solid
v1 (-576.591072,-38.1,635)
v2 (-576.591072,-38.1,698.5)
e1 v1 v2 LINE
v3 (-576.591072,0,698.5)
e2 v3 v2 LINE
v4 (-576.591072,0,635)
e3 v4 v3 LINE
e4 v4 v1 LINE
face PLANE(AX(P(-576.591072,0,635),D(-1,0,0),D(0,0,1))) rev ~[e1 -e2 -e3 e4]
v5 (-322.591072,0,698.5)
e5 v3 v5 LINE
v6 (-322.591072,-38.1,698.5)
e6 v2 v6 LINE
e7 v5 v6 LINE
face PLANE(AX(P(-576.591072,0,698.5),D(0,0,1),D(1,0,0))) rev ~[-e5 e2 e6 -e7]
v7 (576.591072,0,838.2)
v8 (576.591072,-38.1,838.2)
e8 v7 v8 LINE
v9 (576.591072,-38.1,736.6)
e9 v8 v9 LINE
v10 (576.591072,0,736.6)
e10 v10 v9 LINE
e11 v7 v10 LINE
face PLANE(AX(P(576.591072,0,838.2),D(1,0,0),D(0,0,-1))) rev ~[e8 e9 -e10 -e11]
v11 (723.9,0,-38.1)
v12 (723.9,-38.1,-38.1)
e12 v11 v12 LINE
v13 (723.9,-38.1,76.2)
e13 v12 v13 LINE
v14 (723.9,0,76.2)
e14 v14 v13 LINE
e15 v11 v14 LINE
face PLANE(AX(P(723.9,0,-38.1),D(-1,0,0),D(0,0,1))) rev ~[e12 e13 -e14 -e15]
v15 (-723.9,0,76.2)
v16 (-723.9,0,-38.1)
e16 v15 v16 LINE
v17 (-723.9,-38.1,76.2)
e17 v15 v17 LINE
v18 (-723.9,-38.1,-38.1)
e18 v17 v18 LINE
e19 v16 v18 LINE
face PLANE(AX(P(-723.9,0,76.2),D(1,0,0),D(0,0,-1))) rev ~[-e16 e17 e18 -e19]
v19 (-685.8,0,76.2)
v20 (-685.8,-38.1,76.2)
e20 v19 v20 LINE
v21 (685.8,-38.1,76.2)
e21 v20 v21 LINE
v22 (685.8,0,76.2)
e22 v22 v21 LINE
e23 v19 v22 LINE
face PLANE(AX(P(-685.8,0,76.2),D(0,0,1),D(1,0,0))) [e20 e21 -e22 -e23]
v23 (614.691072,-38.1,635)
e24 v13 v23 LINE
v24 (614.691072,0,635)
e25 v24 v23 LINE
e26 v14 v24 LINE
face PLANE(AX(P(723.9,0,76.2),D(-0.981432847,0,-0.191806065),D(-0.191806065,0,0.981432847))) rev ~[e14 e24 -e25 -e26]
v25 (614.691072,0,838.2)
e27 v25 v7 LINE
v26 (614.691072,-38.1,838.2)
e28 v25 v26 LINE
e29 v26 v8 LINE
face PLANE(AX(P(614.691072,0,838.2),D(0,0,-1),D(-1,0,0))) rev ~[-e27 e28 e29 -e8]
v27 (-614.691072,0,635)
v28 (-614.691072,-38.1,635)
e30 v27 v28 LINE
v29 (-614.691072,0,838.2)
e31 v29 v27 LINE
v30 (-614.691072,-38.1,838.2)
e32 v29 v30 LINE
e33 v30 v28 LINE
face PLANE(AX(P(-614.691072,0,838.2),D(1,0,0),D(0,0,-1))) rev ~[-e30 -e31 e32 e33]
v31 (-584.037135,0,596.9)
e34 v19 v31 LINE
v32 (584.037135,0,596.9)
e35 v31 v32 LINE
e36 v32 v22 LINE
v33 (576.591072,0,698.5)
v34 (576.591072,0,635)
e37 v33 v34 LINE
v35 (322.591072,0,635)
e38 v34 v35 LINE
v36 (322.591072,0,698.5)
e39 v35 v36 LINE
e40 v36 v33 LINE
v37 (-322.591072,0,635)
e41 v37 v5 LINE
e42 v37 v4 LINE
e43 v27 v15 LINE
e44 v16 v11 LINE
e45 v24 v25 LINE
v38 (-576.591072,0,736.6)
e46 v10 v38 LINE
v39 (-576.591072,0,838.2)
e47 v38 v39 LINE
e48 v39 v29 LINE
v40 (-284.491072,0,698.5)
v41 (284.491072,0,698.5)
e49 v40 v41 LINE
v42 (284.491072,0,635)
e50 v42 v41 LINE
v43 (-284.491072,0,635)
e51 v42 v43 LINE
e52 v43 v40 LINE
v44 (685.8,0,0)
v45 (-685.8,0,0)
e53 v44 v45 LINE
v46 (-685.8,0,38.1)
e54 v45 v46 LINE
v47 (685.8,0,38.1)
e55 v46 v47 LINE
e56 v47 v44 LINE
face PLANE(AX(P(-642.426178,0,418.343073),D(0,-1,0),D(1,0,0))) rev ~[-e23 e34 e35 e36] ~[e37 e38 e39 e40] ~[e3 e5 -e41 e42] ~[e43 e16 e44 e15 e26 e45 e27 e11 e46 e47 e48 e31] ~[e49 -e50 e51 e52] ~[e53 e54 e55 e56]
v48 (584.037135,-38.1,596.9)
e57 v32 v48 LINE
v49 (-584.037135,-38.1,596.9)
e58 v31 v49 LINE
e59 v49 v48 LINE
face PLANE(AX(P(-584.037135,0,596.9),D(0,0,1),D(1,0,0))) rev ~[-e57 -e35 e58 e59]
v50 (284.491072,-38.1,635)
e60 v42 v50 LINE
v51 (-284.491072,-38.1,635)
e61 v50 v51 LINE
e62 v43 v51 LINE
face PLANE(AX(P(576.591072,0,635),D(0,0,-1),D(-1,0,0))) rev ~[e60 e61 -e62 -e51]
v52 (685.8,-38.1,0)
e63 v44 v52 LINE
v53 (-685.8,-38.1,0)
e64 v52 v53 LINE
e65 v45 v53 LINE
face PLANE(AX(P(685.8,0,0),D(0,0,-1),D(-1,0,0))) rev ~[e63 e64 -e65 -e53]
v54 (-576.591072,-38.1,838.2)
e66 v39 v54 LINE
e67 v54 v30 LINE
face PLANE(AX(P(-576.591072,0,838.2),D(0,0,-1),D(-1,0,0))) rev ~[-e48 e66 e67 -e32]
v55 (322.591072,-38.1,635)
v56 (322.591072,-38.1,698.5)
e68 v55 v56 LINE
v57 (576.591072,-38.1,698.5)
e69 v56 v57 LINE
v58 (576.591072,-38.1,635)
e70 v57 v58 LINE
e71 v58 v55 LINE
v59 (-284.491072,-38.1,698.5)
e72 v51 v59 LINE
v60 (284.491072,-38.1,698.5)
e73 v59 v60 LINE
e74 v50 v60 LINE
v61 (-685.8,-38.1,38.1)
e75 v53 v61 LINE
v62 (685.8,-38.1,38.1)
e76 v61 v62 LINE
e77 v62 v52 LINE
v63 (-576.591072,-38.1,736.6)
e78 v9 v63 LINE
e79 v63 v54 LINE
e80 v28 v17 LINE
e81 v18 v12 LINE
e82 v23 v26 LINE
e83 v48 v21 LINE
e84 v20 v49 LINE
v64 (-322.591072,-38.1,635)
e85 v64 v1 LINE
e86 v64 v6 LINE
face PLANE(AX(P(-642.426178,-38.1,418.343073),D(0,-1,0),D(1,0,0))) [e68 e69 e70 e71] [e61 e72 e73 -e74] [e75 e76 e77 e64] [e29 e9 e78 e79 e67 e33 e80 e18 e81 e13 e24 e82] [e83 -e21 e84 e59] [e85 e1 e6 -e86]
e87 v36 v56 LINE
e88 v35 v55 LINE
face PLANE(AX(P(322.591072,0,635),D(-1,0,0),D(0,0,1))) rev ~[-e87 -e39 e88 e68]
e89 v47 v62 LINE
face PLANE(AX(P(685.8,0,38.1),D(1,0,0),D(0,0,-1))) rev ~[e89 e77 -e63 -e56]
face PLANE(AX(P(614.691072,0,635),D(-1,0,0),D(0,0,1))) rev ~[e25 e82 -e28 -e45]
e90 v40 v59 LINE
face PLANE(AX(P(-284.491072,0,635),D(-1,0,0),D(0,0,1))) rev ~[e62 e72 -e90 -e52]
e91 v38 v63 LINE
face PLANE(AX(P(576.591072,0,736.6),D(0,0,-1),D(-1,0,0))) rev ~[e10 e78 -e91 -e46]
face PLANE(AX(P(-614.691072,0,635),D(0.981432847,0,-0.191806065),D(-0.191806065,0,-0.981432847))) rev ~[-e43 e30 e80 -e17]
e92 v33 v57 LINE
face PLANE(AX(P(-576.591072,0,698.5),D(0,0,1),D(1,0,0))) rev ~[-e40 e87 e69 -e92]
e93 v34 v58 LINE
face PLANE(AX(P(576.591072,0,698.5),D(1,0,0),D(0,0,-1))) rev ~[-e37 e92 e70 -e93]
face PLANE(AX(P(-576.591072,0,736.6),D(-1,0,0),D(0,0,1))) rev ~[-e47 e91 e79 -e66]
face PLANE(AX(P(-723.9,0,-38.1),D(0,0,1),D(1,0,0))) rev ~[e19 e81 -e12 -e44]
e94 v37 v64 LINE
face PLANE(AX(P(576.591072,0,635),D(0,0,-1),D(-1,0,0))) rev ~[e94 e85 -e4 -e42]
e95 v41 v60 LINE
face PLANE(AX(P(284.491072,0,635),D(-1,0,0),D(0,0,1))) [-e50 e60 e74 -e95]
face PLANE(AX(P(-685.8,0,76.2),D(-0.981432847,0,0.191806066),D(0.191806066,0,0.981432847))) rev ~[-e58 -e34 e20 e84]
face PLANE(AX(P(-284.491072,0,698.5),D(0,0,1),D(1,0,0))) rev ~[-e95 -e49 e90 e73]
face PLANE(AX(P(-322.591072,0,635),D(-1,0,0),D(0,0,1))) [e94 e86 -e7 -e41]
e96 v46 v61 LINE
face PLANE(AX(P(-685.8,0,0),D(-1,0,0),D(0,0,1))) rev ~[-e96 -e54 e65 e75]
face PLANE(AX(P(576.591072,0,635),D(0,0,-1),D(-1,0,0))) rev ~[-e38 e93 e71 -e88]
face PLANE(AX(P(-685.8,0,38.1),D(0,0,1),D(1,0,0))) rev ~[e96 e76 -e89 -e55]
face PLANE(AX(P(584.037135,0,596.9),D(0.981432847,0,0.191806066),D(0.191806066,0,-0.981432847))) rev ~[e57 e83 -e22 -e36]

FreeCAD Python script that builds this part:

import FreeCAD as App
import Part
import Sketcher

V = App.Vector
Q = App.Units.Quantity

doc = App.newDocument("Part")
body = doc.addObject("PartDesign::Body", "Body")

sketch1 = doc.addObject("Sketcher::SketchObject", "Sketch")
body.addObject(sketch1)
sketch1.AttachmentSupport = (doc.XZ_Plane, [""])
sketch1.MapMode = "FlatFace"
sketch1.addGeometry([
    Part.LineSegment(V(-724, 76, 0), V(-724, -38, 0)),
    Part.LineSegment(V(-724, -38, 0), V(724, -38, 0)),
    Part.LineSegment(V(724, -38, 0), V(724, 76, 0)),
    Part.LineSegment(V(724, 76, 0), V(615, 635, 0)),
    Part.LineSegment(V(615, 635, 0), V(615, 838, 0)),
    Part.LineSegment(V(615, 838, 0), V(577, 838, 0)),
    Part.LineSegment(V(577, 838, 0), V(577, 737, 0)),
    Part.LineSegment(V(577, 737, 0), V(-577, 737, 0)),
    Part.LineSegment(V(-577, 737, 0), V(-577, 838, 0)),
    Part.LineSegment(V(-577, 838, 0), V(-615, 838, 0)),
    Part.LineSegment(V(-615, 838, 0), V(-615, 635, 0)),
    Part.LineSegment(V(-615, 635, 0), V(-724, 76, 0)),
    Part.LineSegment(V(-686, 0, 0), V(-686, 38, 0)),
    Part.LineSegment(V(-686, 38, 0), V(686, 38, 0)),
    Part.LineSegment(V(686, 38, 0), V(686, 0, 0)),
    Part.LineSegment(V(686, 0, 0), V(-686, 0, 0)),
    Part.LineSegment(V(-686, 76, 0), V(-584, 597, 0)),
    Part.LineSegment(V(-584, 597, 0), V(584, 597, 0)),
    Part.LineSegment(V(584, 597, 0), V(686, 76, 0)),
    Part.LineSegment(V(686, 76, 0), V(-686, 76, 0)),
    Part.LineSegment(V(577, 635, 0), V(-577, 635, 0)),
    Part.LineSegment(V(-577, 635, 0), V(-577, 698, 0)),
    Part.LineSegment(V(-577, 698, 0), V(577, 698, 0)),
    Part.LineSegment(V(577, 698, 0), V(577, 635, 0)),
], False)
sketch1.addConstraint([
    Sketcher.Constraint("Coincident", 0, 2, 1, 1),
    Sketcher.Constraint("Coincident", 1, 2, 2, 1),
    Sketcher.Constraint("Coincident", 2, 2, 3, 1),
    Sketcher.Constraint("Coincident", 3, 2, 4, 1),
    Sketcher.Constraint("Coincident", 4, 2, 5, 1),
    Sketcher.Constraint("Coincident", 5, 2, 6, 1),
    Sketcher.Constraint("Coincident", 6, 2, 7, 1),
    Sketcher.Constraint("Coincident", 7, 2, 8, 1),
    Sketcher.Constraint("Coincident", 8, 2, 9, 1),
    Sketcher.Constraint("Coincident", 9, 2, 10, 1),
    Sketcher.Constraint("Coincident", 10, 2, 11, 1),
    Sketcher.Constraint("Coincident", 11, 2, 0, 1),
    Sketcher.Constraint("Coincident", 12, 2, 13, 1),
    Sketcher.Constraint("Coincident", 13, 2, 14, 1),
    Sketcher.Constraint("Coincident", 14, 2, 15, 1),
    Sketcher.Constraint("Coincident", 15, 2, 12, 1),
    Sketcher.Constraint("Coincident", 16, 2, 17, 1),
    Sketcher.Constraint("Coincident", 17, 2, 18, 1),
    Sketcher.Constraint("Coincident", 18, 2, 19, 1),
    Sketcher.Constraint("Coincident", 19, 2, 16, 1),
    Sketcher.Constraint("Coincident", 20, 2, 21, 1),
    Sketcher.Constraint("Coincident", 21, 2, 22, 1),
    Sketcher.Constraint("Coincident", 22, 2, 23, 1),
    Sketcher.Constraint("Coincident", 23, 2, 20, 1),
    Sketcher.Constraint("Vertical", 0),
    Sketcher.Constraint("Horizontal", 1),
    Sketcher.Constraint("Vertical", 2),
    Sketcher.Constraint("Vertical", 4),
    Sketcher.Constraint("Horizontal", 5),
    Sketcher.Constraint("Vertical", 6),
    Sketcher.Constraint("Horizontal", 7),
    Sketcher.Constraint("Vertical", 8),
    Sketcher.Constraint("Horizontal", 9),
    Sketcher.Constraint("Vertical", 10),
    Sketcher.Constraint("Vertical", 12),
    Sketcher.Constraint("Horizontal", 13),
    Sketcher.Constraint("Vertical", 14),
    Sketcher.Constraint("Horizontal", 15),
    Sketcher.Constraint("Horizontal", 17),
    Sketcher.Constraint("Horizontal", 19),
    Sketcher.Constraint("Horizontal", 20),
    Sketcher.Constraint("Vertical", 21),
    Sketcher.Constraint("Horizontal", 22),
    Sketcher.Constraint("Vertical", 23),
    Sketcher.Constraint("Symmetric", 14, 2, 15, 2, -1, 1),
    Sketcher.Constraint("Symmetric", 5, 2, 8, 2, -2),
    Sketcher.Constraint("Symmetric", 3, 2, 10, 2, -2),
    Sketcher.Constraint("Symmetric", 2, 2, 11, 2, -2),
    Sketcher.Constraint("Parallel", 11, 16),
    Sketcher.Constraint("Parallel", 3, 18),
    Sketcher.Constraint("Horizontal", 11, 2, 18, 2),
    Sketcher.Constraint("Horizontal", 10, 2, 20, 2),
    Sketcher.Constraint("Vertical", 14, 2, 18, 2),
    Sketcher.Constraint("Vertical", 15, 2, 19, 2),
    Sketcher.Constraint("Vertical", 8, 2, 20, 2),
    Sketcher.Constraint("Vertical", 6, 2, 22, 2),
    Sketcher.Constraint("Equal", 9, 12),
    Sketcher.Constraint("DistanceX", 1, 1, 1, 2, Q("57 in")),
    Sketcher.Constraint("DistanceX", 13, 1, 13, 2, Q("54 in")),
    Sketcher.Constraint("DistanceY", 4, 1, 4, 2, Q("8 in")),
    Sketcher.Constraint("DistanceY", 6, 2, 6, 1, Q("4 in")),
    Sketcher.Constraint("DistanceX", 5, 2, 5, 1, Q("1.5 in")),
    Sketcher.Constraint("DistanceY", 0, 2, 0, 1, Q("4.5 in")),
    Sketcher.Constraint("DistanceY", 21, 1, 21, 2, Q("2.5 in")),
    Sketcher.Constraint("DistanceY", -1, 1, 2, 2, Q("3 in")),
    Sketcher.Constraint("DistanceY", -1, 1, 3, 2, Q("25 in")),
    Sketcher.Constraint("DistanceY", 16, 2, 21, 2, Q("4 in")),
    Sketcher.Constraint("DistanceX", 17, 1, 17, 2, 1168.07427),
])
pad1 = doc.addObject("PartDesign::Pad", "Pad")
body.addObject(pad1)
pad1.Profile = sketch1
pad1.Length = Q("1.5 in")

sketch2 = doc.addObject("Sketcher::SketchObject", "Sketch001")
body.addObject(sketch2)
sketch2.AttachmentSupport = (doc.XZ_Plane, [""])
sketch2.MapMode = "FlatFace"
sketch2.addGeometry([
    Part.LineSegment(V(-724, 76, 0), V(-724, -38, 0)),
    Part.LineSegment(V(-724, -38, 0), V(724, -38, 0)),
    Part.LineSegment(V(724, -38, 0), V(724, 76, 0)),
    Part.LineSegment(V(724, 76, 0), V(615, 635, 0)),
    Part.LineSegment(V(615, 635, 0), V(615, 838, 0)),
    Part.LineSegment(V(615, 838, 0), V(577, 838, 0)),
    Part.LineSegment(V(577, 838, 0), V(577, 737, 0)),
    Part.LineSegment(V(577, 737, 0), V(-577, 737, 0)),
    Part.LineSegment(V(-577, 737, 0), V(-577, 838, 0)),
    Part.LineSegment(V(-577, 838, 0), V(-615, 838, 0)),
    Part.LineSegment(V(-615, 838, 0), V(-615, 635, 0)),
    Part.LineSegment(V(-615, 635, 0), V(-724, 76, 0)),
    Part.LineSegment(V(577, 698, 0), V(577, 635, 0)),
    Part.LineSegment(V(577, 635, 0), V(584, 597, 0)),
    Part.LineSegment(V(584, 597, 0), V(686, 76, 0)),
    Part.LineSegment(V(686, 76, 0), V(686, 0, 0)),
    Part.LineSegment(V(686, 0, 0), V(-686, 0, 0)),
    Part.LineSegment(V(-686, 0, 0), V(-686, 76, 0)),
    Part.LineSegment(V(-686, 76, 0), V(-584, 597, 0)),
    Part.LineSegment(V(-584, 597, 0), V(-577, 635, 0)),
    Part.LineSegment(V(-577, 635, 0), V(-577, 698, 0)),
    Part.LineSegment(V(-577, 698, 0), V(-323, 698, 0)),
    Part.LineSegment(V(-323, 698, 0), V(-323, 635, 0)),
    Part.LineSegment(V(-323, 635, 0), V(-284, 635, 0)),
    Part.LineSegment(V(-284, 635, 0), V(-284, 698, 0)),
    Part.LineSegment(V(-284, 698, 0), V(284, 698, 0)),
    Part.LineSegment(V(284, 698, 0), V(284, 635, 0)),
    Part.LineSegment(V(284, 635, 0), V(323, 635, 0)),
    Part.LineSegment(V(323, 635, 0), V(323, 698, 0)),
    Part.LineSegment(V(323, 698, 0), V(577, 698, 0)),
], False)
sketch2.addConstraint([
    Sketcher.Constraint("Coincident", 0, 2, 1, 1),
    Sketcher.Constraint("Coincident", 1, 2, 2, 1),
    Sketcher.Constraint("Coincident", 2, 2, 3, 1),
    Sketcher.Constraint("Coincident", 3, 2, 4, 1),
    Sketcher.Constraint("Coincident", 4, 2, 5, 1),
    Sketcher.Constraint("Coincident", 5, 2, 6, 1),
    Sketcher.Constraint("Coincident", 6, 2, 7, 1),
    Sketcher.Constraint("Coincident", 7, 2, 8, 1),
    Sketcher.Constraint("Coincident", 8, 2, 9, 1),
    Sketcher.Constraint("Coincident", 9, 2, 10, 1),
    Sketcher.Constraint("Coincident", 10, 2, 11, 1),
    Sketcher.Constraint("Coincident", 11, 2, 0, 1),
    Sketcher.Constraint("Coincident", 12, 2, 13, 1),
    Sketcher.Constraint("Coincident", 13, 2, 14, 1),
    Sketcher.Constraint("Coincident", 14, 2, 15, 1),
    Sketcher.Constraint("Coincident", 15, 2, 16, 1),
    Sketcher.Constraint("Coincident", 16, 2, 17, 1),
    Sketcher.Constraint("Coincident", 17, 2, 18, 1),
    Sketcher.Constraint("Coincident", 18, 2, 19, 1),
    Sketcher.Constraint("Coincident", 19, 2, 20, 1),
    Sketcher.Constraint("Coincident", 20, 2, 21, 1),
    Sketcher.Constraint("Coincident", 21, 2, 22, 1),
    Sketcher.Constraint("Coincident", 22, 2, 23, 1),
    Sketcher.Constraint("Coincident", 23, 2, 24, 1),
    Sketcher.Constraint("Coincident", 24, 2, 25, 1),
    Sketcher.Constraint("Coincident", 25, 2, 26, 1),
    Sketcher.Constraint("Coincident", 26, 2, 27, 1),
    Sketcher.Constraint("Coincident", 27, 2, 28, 1),
    Sketcher.Constraint("Coincident", 28, 2, 29, 1),
    Sketcher.Constraint("Coincident", 29, 2, 12, 1),
    Sketcher.Constraint("Vertical", 0),
    Sketcher.Constraint("Horizontal", 1),
    Sketcher.Constraint("Vertical", 2),
    Sketcher.Constraint("Vertical", 4),
    Sketcher.Constraint("Horizontal", 5),
    Sketcher.Constraint("Vertical", 6),
    Sketcher.Constraint("Horizontal", 7),
    Sketcher.Constraint("Vertical", 8),
    Sketcher.Constraint("Horizontal", 9),
    Sketcher.Constraint("Vertical", 10),
    Sketcher.Constraint("Vertical", 12),
    Sketcher.Constraint("Vertical", 15),
    Sketcher.Constraint("Horizontal", 16),
    Sketcher.Constraint("Vertical", 17),
    Sketcher.Constraint("Vertical", 20),
    Sketcher.Constraint("Horizontal", 21),
    Sketcher.Constraint("Vertical", 22),
    Sketcher.Constraint("Horizontal", 23),
    Sketcher.Constraint("Vertical", 24),
    Sketcher.Constraint("Horizontal", 25),
    Sketcher.Constraint("Vertical", 26),
    Sketcher.Constraint("Horizontal", 27),
    Sketcher.Constraint("Vertical", 28),
    Sketcher.Constraint("Horizontal", 29),
    Sketcher.Constraint("Symmetric", 15, 2, 16, 2, -1, 1),
    Sketcher.Constraint("Symmetric", 5, 2, 8, 2, -2),
    Sketcher.Constraint("Symmetric", 3, 2, 10, 2, -2),
    Sketcher.Constraint("Symmetric", 2, 2, 11, 2, -2),
    Sketcher.Constraint("Symmetric", 13, 2, 18, 2, -2),
    Sketcher.Constraint("Symmetric", 12, 2, 19, 2, -2),
    Sketcher.Constraint("Symmetric", 23, 2, 26, 2, -2),
    Sketcher.Constraint("Symmetric", 21, 2, 28, 2, -2),
    Sketcher.Constraint("Parallel", 3, 13),
    Sketcher.Constraint("Parallel", 13, 14),
    Sketcher.Constraint("Parallel", 11, 18),
    Sketcher.Constraint("Horizontal", 10, 2, 12, 2),
    Sketcher.Constraint("Horizontal", 11, 2, 14, 2),
    Sketcher.Constraint("Horizontal", 19, 2, 22, 2),
    Sketcher.Constraint("Horizontal", 21, 2, 24, 2),
    Sketcher.Constraint("Vertical", 6, 2, 12, 2),
    Sketcher.Constraint("Equal", 9, 23),
    Sketcher.Constraint("DistanceX", 1, 1, 1, 2, Q("57 in")),
    Sketcher.Constraint("DistanceX", 16, 2, 16, 1, Q("54 in")),
    Sketcher.Constraint("DistanceX", 21, 1, 21, 2, Q("10 in")),
    Sketcher.Constraint("DistanceY", 4, 1, 4, 2, Q("8 in")),
    Sketcher.Constraint("DistanceY", 6, 2, 6, 1, Q("4 in")),
    Sketcher.Constraint("DistanceY", 15, 2, 15, 1, Q("3 in")),
    Sketcher.Constraint("DistanceY", 0, 2, 0, 1, Q("4.5 in")),
    Sketcher.Constraint("DistanceY", 12, 2, 12, 1, Q("2.5 in")),
    Sketcher.Constraint("DistanceY", -1, 1, 3, 2, Q("25 in")),
    Sketcher.Constraint("DistanceY", 18, 2, 20, 2, Q("4 in")),
    Sketcher.Constraint("Distance", 3, 569.37161),
])
pad2 = doc.addObject("PartDesign::Pad", "Pad001")
body.addObject(pad2)
pad2.Profile = sketch2
pad2.Length = Q("1.5 in")

doc.recompute()
